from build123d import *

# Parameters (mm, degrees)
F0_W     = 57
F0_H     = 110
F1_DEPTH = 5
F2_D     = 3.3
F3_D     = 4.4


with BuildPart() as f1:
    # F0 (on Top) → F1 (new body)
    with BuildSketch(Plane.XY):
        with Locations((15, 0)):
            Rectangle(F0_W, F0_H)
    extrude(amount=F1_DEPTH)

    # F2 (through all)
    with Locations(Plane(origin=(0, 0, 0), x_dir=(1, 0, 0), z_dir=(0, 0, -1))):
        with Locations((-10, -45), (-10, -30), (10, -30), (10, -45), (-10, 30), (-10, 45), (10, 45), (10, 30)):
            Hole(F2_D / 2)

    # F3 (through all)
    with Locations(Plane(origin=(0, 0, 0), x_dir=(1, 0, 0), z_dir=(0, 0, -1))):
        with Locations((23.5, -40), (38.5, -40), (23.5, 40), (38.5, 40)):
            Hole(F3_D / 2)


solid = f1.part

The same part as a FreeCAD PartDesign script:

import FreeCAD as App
import Part
import Sketcher

V = App.Vector
Q = App.Units.Quantity

doc = App.newDocument("Part")
params = doc.addObject("Spreadsheet::Sheet", "Params")
for row, (alias, value) in enumerate([
    ("sketch1_width", "57 mm"),
    ("sketch1_height", "110 mm"),
    ("pad1_length", "5 mm"),
    ("sketch2_diameter", "3.3 mm"),
    ("hole_diameter", "3.3 mm"),
    ("sketch3_diameter", "4.4 mm"),
    ("hole2_diameter", "4.4 mm"),
], start=1):
    params.set(f"A{row}", alias)
    params.set(f"B{row}", "=" + value)
    params.setAlias(f"B{row}", alias)

body = doc.addObject("PartDesign::Body", "Body")

# Sketch on XY plane
sketch1 = doc.addObject("Sketcher::SketchObject", "Sketch")
body.addObject(sketch1)
sketch1.AttachmentSupport = (doc.XY_Plane, [""])
sketch1.MapMode = "FlatFace"
sketch1.addGeometry([
    Part.LineSegment(V(-14, 55, 0), V(-14, -55, 0)),
    Part.LineSegment(V(-14, -55, 0), V(44, -55, 0)),
    Part.LineSegment(V(44, -55, 0), V(44, 55, 0)),
    Part.LineSegment(V(44, 55, 0), V(-14, 55, 0)),
], False)
sketch1.addConstraint([
    Sketcher.Constraint("Coincident", 0, 2, 1, 1),
    Sketcher.Constraint("Coincident", 1, 2, 2, 1),
    Sketcher.Constraint("Coincident", 2, 2, 3, 1),
    Sketcher.Constraint("Coincident", 3, 2, 0, 1),
    Sketcher.Constraint("Vertical", 0),
    Sketcher.Constraint("Horizontal", 1),
    Sketcher.Constraint("Vertical", 2),
    Sketcher.Constraint("Horizontal", 3),
    Sketcher.Constraint("DistanceX", 1, 1, 1, 2, Q("57 mm")),
    Sketcher.Constraint("DistanceY", 0, 2, 0, 1, Q("110 mm")),
    Sketcher.Constraint("DistanceY", 0, 2, -1, 1, Q("55 mm")),
    Sketcher.Constraint("DistanceX", 0, 2, -1, 1, Q("13.5 mm")),
])
sketch1.setExpression("Constraints[8]", "Params.sketch1_width")
sketch1.setExpression("Constraints[9]", "Params.sketch1_height")
pad1 = doc.addObject("PartDesign::Pad", "Pad")
body.addObject(pad1)
pad1.Profile = sketch1
pad1.setExpression("Length", "Params.pad1_length")

# Sketch on XY plane
sketch2 = doc.addObject("Sketcher::SketchObject", "Sketch001")
body.addObject(sketch2)
sketch2.AttachmentSupport = (doc.XY_Plane, [""])
sketch2.MapMode = "FlatFace"
sketch2.addGeometry([
    Part.Circle(V(-10, 45, 0), V(0, 0, 1), 1.6),  # 0
    Part.Circle(V(-10, 30, 0), V(0, 0, 1), 1.6),  # 1
    Part.Circle(V(10, 30, 0), V(0, 0, 1), 1.6),  # 2
    Part.Circle(V(10, 45, 0), V(0, 0, 1), 1.6),  # 3
    Part.Circle(V(-10, -30, 0), V(0, 0, 1), 1.6),  # 4
    Part.Circle(V(-10, -45, 0), V(0, 0, 1), 1.6),  # 5
    Part.Circle(V(10, -45, 0), V(0, 0, 1), 1.6),  # 6
    Part.Circle(V(10, -30, 0), V(0, 0, 1), 1.6),  # 7
], False)
sketch2.addConstraint([
    Sketcher.Constraint("Equal", 0, 1),
    Sketcher.Constraint("Equal", 1, 2),
    Sketcher.Constraint("Equal", 2, 3),
    Sketcher.Constraint("Equal", 3, 4),
    Sketcher.Constraint("Equal", 4, 5),
    Sketcher.Constraint("Equal", 5, 6),
    Sketcher.Constraint("Equal", 6, 7),
    Sketcher.Constraint("Symmetric", 2, 3, 4, 3, -1, 1),
    Sketcher.Constraint("Symmetric", 3, 3, 5, 3, -1, 1),
    Sketcher.Constraint("Symmetric", 0, 3, 6, 3, -1, 1),
    Sketcher.Constraint("Symmetric", 1, 3, 7, 3, -1, 1),
    Sketcher.Constraint("Symmetric", 1, 3, 2, 3, -2),
    Sketcher.Constraint("Symmetric", 0, 3, 3, 3, -2),
    Sketcher.Constraint("Vertical", 0, 3, 1, 3),
    Sketcher.Constraint("Diameter", 0, Q("3.3 mm")),
    Sketcher.Constraint("DistanceX", 0, 3, -1, 1, Q("10 mm")),
    Sketcher.Constraint("DistanceY", -1, 1, 0, 3, Q("45 mm")),
    Sketcher.Constraint("DistanceY", -1, 1, 1, 3, Q("30 mm")),
])
sketch2.setExpression("Constraints[14]", "Params.sketch2_diameter")
doc.recompute()
hole = doc.addObject("PartDesign::Hole", "Hole")
body.addObject(hole)
hole.Profile = sketch2
hole.ThreadType = "None"
hole.setExpression("Diameter", "Params.hole_diameter")
hole.DepthType = "ThroughAll"
hole.Reversed = True

# Sketch on XY plane
sketch3 = doc.addObject("Sketcher::SketchObject", "Sketch002")
body.addObject(sketch3)
sketch3.AttachmentSupport = (doc.XY_Plane, [""])
sketch3.MapMode = "FlatFace"
sketch3.addGeometry([
    Part.Circle(V(23.5, 40, 0), V(0, 0, 1), 2.2),
    Part.Circle(V(38.5, 40, 0), V(0, 0, 1), 2.2),
    Part.Circle(V(23.5, -40, 0), V(0, 0, 1), 2.2),
    Part.Circle(V(38.5, -40, 0), V(0, 0, 1), 2.2),
], False)
sketch3.addConstraint([
    Sketcher.Constraint("Equal", 0, 1),
    Sketcher.Constraint("Equal", 1, 2),
    Sketcher.Constraint("Equal", 2, 3),
    Sketcher.Constraint("Symmetric", 0, 3, 2, 3, -1),
    Sketcher.Constraint("Symmetric", 1, 3, 3, 3, -1),
    Sketcher.Constraint("Horizontal", 0, 3, 1, 3),
    Sketcher.Constraint("Diameter", 0, Q("4.4 mm")),
    Sketcher.Constraint("DistanceY", -1, 1, 0, 3, Q("40 mm")),
    Sketcher.Constraint("DistanceX", 0, 3, 1, 3, Q("15 mm")),
    Sketcher.Constraint("DistanceX", -1, 1, 0, 3, Q("23.5 mm")),
])
sketch3.setExpression("Constraints[6]", "Params.sketch3_diameter")
doc.recompute()
hole2 = doc.addObject("PartDesign::Hole", "Hole001")
body.addObject(hole2)
hole2.Profile = sketch3
hole2.ThreadType = "None"
hole2.setExpression("Diameter", "Params.hole2_diameter")
hole2.DepthType = "ThroughAll"
hole2.Reversed = True

doc.recompute()
